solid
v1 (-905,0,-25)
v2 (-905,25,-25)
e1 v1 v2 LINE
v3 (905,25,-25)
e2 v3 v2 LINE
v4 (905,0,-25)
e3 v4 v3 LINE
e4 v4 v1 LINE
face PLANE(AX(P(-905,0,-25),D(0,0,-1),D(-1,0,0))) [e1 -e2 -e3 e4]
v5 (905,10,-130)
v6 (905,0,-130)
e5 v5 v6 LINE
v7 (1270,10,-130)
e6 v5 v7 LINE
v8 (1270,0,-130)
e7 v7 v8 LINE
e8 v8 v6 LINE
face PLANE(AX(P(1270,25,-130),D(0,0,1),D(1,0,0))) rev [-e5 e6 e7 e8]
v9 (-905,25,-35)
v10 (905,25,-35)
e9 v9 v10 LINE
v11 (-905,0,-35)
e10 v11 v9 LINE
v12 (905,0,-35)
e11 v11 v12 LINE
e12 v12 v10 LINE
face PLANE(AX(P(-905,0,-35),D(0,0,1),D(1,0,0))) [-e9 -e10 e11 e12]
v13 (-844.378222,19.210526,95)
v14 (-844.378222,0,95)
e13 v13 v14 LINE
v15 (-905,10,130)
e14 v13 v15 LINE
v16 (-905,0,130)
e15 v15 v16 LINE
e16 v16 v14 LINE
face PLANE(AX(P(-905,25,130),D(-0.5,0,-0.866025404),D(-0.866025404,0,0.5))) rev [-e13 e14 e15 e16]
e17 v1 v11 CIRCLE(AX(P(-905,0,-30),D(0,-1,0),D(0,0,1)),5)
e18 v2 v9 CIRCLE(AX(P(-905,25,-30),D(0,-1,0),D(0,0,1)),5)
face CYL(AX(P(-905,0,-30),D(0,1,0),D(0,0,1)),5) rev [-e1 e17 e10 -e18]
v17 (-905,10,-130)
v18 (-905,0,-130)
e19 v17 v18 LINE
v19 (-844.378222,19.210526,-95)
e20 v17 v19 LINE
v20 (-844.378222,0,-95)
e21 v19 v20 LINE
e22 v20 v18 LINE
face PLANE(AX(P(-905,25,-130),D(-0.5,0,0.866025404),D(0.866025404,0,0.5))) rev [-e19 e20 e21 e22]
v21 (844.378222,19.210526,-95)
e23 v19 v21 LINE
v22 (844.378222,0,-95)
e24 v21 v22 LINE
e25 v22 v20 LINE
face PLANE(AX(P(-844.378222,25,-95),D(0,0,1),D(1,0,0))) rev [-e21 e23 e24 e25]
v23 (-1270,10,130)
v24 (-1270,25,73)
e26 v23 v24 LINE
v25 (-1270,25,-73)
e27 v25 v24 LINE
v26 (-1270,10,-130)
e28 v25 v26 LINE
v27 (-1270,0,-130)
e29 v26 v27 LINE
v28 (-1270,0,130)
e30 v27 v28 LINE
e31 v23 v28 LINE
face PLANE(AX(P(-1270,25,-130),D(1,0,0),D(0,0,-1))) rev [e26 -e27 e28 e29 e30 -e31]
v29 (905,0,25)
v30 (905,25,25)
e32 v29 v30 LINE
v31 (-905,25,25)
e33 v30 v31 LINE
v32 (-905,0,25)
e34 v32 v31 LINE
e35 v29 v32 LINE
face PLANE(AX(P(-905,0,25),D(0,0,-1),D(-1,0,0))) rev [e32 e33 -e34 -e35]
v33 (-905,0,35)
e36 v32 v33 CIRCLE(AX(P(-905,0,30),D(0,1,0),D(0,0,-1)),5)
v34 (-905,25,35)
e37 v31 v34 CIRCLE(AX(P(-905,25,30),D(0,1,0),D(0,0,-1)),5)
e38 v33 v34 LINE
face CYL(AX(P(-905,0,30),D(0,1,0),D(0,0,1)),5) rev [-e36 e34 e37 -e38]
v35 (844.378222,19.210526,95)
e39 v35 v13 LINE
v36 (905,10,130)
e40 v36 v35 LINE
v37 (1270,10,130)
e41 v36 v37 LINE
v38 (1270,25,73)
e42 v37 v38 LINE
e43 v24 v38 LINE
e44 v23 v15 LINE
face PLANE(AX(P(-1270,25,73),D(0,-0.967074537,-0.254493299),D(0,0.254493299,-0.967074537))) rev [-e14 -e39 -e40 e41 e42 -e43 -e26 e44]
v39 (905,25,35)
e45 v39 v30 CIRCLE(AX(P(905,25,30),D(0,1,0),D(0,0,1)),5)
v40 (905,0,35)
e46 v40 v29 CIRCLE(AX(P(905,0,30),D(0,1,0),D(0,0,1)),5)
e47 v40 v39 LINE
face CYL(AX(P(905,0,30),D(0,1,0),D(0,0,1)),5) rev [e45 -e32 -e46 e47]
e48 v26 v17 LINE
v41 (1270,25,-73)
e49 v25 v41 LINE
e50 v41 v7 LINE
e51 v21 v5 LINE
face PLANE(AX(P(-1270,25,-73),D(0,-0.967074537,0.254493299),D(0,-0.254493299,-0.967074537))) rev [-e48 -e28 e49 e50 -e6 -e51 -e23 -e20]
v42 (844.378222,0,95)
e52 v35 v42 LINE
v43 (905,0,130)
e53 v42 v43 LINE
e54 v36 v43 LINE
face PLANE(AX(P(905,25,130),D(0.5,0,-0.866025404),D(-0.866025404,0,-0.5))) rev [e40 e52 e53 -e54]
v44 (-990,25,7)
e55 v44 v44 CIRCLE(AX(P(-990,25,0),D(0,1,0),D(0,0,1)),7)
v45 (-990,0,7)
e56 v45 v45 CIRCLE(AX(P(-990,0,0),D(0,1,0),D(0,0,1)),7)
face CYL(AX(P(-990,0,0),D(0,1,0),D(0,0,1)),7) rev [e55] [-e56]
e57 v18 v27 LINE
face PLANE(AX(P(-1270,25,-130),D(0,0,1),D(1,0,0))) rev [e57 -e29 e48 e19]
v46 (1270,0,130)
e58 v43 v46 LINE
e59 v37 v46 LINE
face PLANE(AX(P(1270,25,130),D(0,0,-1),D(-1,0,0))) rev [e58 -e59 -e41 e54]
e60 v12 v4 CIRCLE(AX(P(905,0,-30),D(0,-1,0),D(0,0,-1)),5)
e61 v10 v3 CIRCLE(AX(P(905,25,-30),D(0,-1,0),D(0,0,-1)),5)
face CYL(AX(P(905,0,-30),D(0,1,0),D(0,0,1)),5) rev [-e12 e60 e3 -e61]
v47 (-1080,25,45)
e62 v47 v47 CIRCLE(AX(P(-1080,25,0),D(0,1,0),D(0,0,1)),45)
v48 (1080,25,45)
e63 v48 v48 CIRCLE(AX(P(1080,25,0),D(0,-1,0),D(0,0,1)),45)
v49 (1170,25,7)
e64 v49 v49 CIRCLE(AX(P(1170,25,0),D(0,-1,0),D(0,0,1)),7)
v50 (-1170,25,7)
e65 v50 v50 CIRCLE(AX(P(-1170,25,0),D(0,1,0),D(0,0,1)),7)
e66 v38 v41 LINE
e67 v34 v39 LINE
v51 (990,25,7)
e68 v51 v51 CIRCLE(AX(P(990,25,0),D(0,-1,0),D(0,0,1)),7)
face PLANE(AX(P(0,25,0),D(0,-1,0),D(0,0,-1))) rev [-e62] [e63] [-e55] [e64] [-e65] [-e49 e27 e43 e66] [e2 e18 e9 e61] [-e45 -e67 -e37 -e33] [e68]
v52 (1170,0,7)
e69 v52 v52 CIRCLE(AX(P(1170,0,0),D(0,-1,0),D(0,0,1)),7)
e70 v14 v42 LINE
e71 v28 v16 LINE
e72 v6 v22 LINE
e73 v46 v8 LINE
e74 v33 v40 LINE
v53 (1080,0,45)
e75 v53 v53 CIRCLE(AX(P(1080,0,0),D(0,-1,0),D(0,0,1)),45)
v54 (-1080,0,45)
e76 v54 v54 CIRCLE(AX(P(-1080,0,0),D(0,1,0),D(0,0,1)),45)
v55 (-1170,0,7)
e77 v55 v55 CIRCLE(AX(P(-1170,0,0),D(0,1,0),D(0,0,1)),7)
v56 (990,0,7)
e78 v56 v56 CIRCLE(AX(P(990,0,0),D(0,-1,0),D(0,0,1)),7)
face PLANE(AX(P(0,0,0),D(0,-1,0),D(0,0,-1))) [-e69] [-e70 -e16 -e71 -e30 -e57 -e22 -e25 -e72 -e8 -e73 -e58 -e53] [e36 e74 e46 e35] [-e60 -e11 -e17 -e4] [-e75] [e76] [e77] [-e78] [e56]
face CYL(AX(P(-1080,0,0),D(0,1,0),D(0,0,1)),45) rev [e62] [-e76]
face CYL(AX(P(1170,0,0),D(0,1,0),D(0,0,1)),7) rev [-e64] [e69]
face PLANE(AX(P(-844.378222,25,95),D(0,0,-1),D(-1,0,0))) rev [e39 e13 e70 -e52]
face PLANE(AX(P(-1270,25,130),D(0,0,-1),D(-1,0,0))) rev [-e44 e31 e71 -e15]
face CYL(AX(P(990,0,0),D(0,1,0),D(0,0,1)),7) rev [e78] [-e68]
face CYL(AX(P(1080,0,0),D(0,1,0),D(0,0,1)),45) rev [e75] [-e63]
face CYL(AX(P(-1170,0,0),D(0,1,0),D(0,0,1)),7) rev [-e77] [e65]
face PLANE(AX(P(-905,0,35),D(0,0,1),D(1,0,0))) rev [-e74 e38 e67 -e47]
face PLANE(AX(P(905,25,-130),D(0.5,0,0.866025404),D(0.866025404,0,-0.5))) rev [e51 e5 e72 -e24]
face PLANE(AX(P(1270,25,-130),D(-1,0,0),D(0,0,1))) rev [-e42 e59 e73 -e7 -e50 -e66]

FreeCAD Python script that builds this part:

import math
import FreeCAD as App
import Part
import Sketcher
from FreeCAD import Vector
Q = App.Units.Quantity

doc = App.newDocument("Part")
body = doc.addObject("PartDesign::Body", "Body")

# Sketch on XZ plane
sketch1 = body.newObject("Sketcher::SketchObject", "Sketch")
sketch1.AttachmentSupport = (doc.getObject("XZ_Plane"), [""])
sketch1.MapMode = "FlatFace"
sketch1.addGeometry([
    Part.LineSegment(Vector(-1270, -130, 0), Vector(-1270, 130, 0)),  # 0
    Part.LineSegment(Vector(-1270, 130, 0), Vector(-905, 130, 0)),  # 1
    Part.LineSegment(Vector(-905, 130, 0), Vector(-844, 95, 0)),  # 2
    Part.LineSegment(Vector(-844, 95, 0), Vector(844, 95, 0)),  # 3
    Part.LineSegment(Vector(844, 95, 0), Vector(905, 130, 0)),  # 4
    Part.LineSegment(Vector(905, 130, 0), Vector(1270, 130, 0)),  # 5
    Part.LineSegment(Vector(1270, 130, 0), Vector(1270, -130, 0)),  # 6
    Part.LineSegment(Vector(1270, -130, 0), Vector(905, -130, 0)),  # 7
    Part.LineSegment(Vector(905, -130, 0), Vector(844, -95, 0)),  # 8
    Part.LineSegment(Vector(844, -95, 0), Vector(-844, -95, 0)),  # 9
    Part.LineSegment(Vector(-844, -95, 0), Vector(-905, -130, 0)),  # 10
    Part.LineSegment(Vector(-905, -130, 0), Vector(-1270, -130, 0)),  # 11
], False)
sketch1.addConstraint([
    Sketcher.Constraint("Coincident", 0, 2, 1, 1),
    Sketcher.Constraint("Coincident", 1, 2, 2, 1),
    Sketcher.Constraint("Coincident", 2, 2, 3, 1),
    Sketcher.Constraint("Coincident", 3, 2, 4, 1),
    Sketcher.Constraint("Coincident", 4, 2, 5, 1),
    Sketcher.Constraint("Coincident", 5, 2, 6, 1),
    Sketcher.Constraint("Coincident", 6, 2, 7, 1),
    Sketcher.Constraint("Coincident", 7, 2, 8, 1),
    Sketcher.Constraint("Coincident", 8, 2, 9, 1),
    Sketcher.Constraint("Coincident", 9, 2, 10, 1),
    Sketcher.Constraint("Coincident", 10, 2, 11, 1),
    Sketcher.Constraint("Coincident", 11, 2, 0, 1),
    Sketcher.Constraint("Vertical", 0),
    Sketcher.Constraint("Horizontal", 1),
    Sketcher.Constraint("Horizontal", 3),
    Sketcher.Constraint("Horizontal", 5),
    Sketcher.Constraint("Vertical", 6),
    Sketcher.Constraint("Horizontal", 7),
    Sketcher.Constraint("Horizontal", 9),
    Sketcher.Constraint("Horizontal", 11),
    Sketcher.Constraint("Symmetric", 0, 2, 6, 2, -1, 1),
    Sketcher.Constraint("Symmetric", 2, 2, 8, 2, -1, 1),
    Sketcher.Constraint("Symmetric", 4, 2, 10, 2, -1, 1),
    Sketcher.Constraint("Symmetric", 1, 2, 4, 2, -2),
    Sketcher.Constraint("Parallel", 2, 8),
    Sketcher.Constraint("Parallel", 4, 10),
    Sketcher.Constraint("Vertical", 3, 2, 8, 2),
    Sketcher.Constraint("DistanceX", 1, 1, 1, 2, Q("365 mm")),
    Sketcher.Constraint("DistanceY", 0, 1, 0, 2, Q("260 mm")),
    Sketcher.Constraint("Angle", 2, Q("-30 deg")),
    Sketcher.Constraint("Distance", 2, Q("70 mm")),
    Sketcher.Constraint("DistanceX", 0, 2, -1, 1, Q("1270 mm")),
])
pad1 = body.newObject("PartDesign::Pad", "Pad")
pad1.Profile = sketch1
pad1.Length = 25
pad1.Reversed = True

# Sketch on XZ plane
sketch2 = body.newObject("Sketcher::SketchObject", "Sketch001")
sketch2.AttachmentSupport = (doc.getObject("XZ_Plane"), [""])
sketch2.MapMode = "FlatFace"
sketch2.AttachmentOffset = App.Placement(Vector(0, 0, -25), App.Rotation())
sketch2.addGeometry([
    Part.Circle(Vector(-1080, 0, 0), Vector(0, 0, 1), 45),
    Part.Circle(Vector(-1170, 0, 0), Vector(0, 0, 1), 7),
    Part.Circle(Vector(-990, 0, 0), Vector(0, 0, 1), 7),
], False)
sketch2.addConstraint([
    Sketcher.Constraint("Equal", 1, 2),
    Sketcher.Constraint("PointOnObject", 0, 3, -1),
    Sketcher.Constraint("PointOnObject", 1, 3, -1),
    Sketcher.Constraint("PointOnObject", 2, 3, -1),
    Sketcher.Constraint("Diameter", 0, Q("90 mm")),
    Sketcher.Constraint("Diameter", 1, Q("14 mm")),
    Sketcher.Constraint("DistanceX", 0, 3, -1, 1, Q("1080 mm")),
    Sketcher.Constraint("DistanceX", 1, 3, -1, 1, Q("1170 mm")),
    Sketcher.Constraint("DistanceX", 2, 3, -1, 1, Q("990 mm")),
])
pocket1 = body.newObject("PartDesign::Pocket", "Pocket")
pocket1.Profile = sketch2
pocket1.Type = "ThroughAll"
pocket1.Reversed = True
doc.recompute()

mirrored = body.newObject("PartDesign::Mirrored", "Mirrored")
mirrored.Originals = [pocket1]
mirrored.MirrorPlane = (doc.getObject("YZ_Plane"), [""])
body.Tip = mirrored

# Sketch on XZ plane
sketch3 = body.newObject("Sketcher::SketchObject", "Sketch002")
sketch3.AttachmentSupport = (doc.getObject("XZ_Plane"), [""])
sketch3.MapMode = "FlatFace"
sketch3.AttachmentOffset = App.Placement(Vector(0, 0, -25), App.Rotation())
sketch3.addGeometry([
    Part.LineSegment(Vector(-905, 35, 0), Vector(905, 35, 0)),
    Part.ArcOfCircle(Part.Circle(Vector(905, 30, 0), Vector(0, 0, 1), 5), math.radians(-90), math.radians(90)),
    Part.LineSegment(Vector(905, 25, 0), Vector(-905, 25, 0)),
    Part.ArcOfCircle(Part.Circle(Vector(-905, 30, 0), Vector(0, 0, 1), 5), math.radians(90), math.radians(270)),
], False)
sketch3.addConstraint([
    Sketcher.Constraint("Tangent", 0, 2, 1, 2),
    Sketcher.Constraint("Tangent", 1, 1, 2, 1),
    Sketcher.Constraint("Tangent", 2, 2, 3, 2),
    Sketcher.Constraint("Tangent", 3, 1, 0, 1),
    Sketcher.Constraint("Horizontal", 0),
    Sketcher.Constraint("Horizontal", 2),
    Sketcher.Constraint("Radius", 1, Q("5 mm")),
    Sketcher.Constraint("DistanceX", 0, 1, 0, 2, Q("1810 mm")),
    Sketcher.Constraint("DistanceX", -1, 1, 1, 3, Q("905 mm")),
    Sketcher.Constraint("DistanceY", -1, 1, 1, 3, Q("30 mm")),
])
pocket2 = body.newObject("PartDesign::Pocket", "Pocket001")
pocket2.Profile = sketch3
pocket2.Type = "ThroughAll"
pocket2.Reversed = True
doc.recompute()

mirrored2 = body.newObject("PartDesign::Mirrored", "Mirrored001")
mirrored2.Originals = [pocket2]
mirrored2.MirrorPlane = (doc.getObject("XY_Plane"), [""])
body.Tip = mirrored2

# Sketch on YZ plane
sketch4 = body.newObject("Sketcher::SketchObject", "Sketch003")
sketch4.AttachmentSupport = (doc.getObject("YZ_Plane"), [""])
sketch4.MapMode = "FlatFace"
sketch4.AttachmentOffset = App.Placement(Vector(0, 0, 1270), App.Rotation())
sketch4.addGeometry([
    Part.LineSegment(Vector(10, 130, 0), Vector(25, 73, 0)),  # 0
    Part.LineSegment(Vector(25, 73, 0), Vector(25, 130, 0)),  # 1
    Part.LineSegment(Vector(25, 130, 0), Vector(10, 130, 0)),  # 2
    Part.LineSegment(Vector(25, -73, 0), Vector(10, -130, 0)),  # 3
    Part.LineSegment(Vector(10, -130, 0), Vector(25, -130, 0)),  # 4
    Part.LineSegment(Vector(25, -130, 0), Vector(25, -73, 0)),  # 5
], False)
sketch4.addConstraint([
    Sketcher.Constraint("Coincident", 0, 2, 1, 1),
    Sketcher.Constraint("Coincident", 1, 2, 2, 1),
    Sketcher.Constraint("Coincident", 2, 2, 0, 1),
    Sketcher.Constraint("Coincident", 3, 2, 4, 1),
    Sketcher.Constraint("Coincident", 4, 2, 5, 1),
    Sketcher.Constraint("Coincident", 5, 2, 3, 1),
    Sketcher.Constraint("Vertical", 1),
    Sketcher.Constraint("Horizontal", 2),
    Sketcher.Constraint("Horizontal", 4),
    Sketcher.Constraint("Vertical", 5),
    Sketcher.Constraint("Symmetric", 2, 2, 3, 2, -1),
    Sketcher.Constraint("Symmetric", 0, 2, 5, 2, -1),
    Sketcher.Constraint("DistanceX", 2, 2, 2, 1, Q("15 mm")),
    Sketcher.Constraint("DistanceY", 1, 1, 1, 2, Q("57 mm")),
    Sketcher.Constraint("DistanceX", -1, 1, 0, 2, Q("25 mm")),
    Sketcher.Constraint("DistanceY", -1, 1, 0, 2, Q("73 mm")),
])
pocket3 = body.newObject("PartDesign::Pocket", "Pocket002")
pocket3.Profile = sketch4
pocket3.Type = "ThroughAll"

doc.recompute()
